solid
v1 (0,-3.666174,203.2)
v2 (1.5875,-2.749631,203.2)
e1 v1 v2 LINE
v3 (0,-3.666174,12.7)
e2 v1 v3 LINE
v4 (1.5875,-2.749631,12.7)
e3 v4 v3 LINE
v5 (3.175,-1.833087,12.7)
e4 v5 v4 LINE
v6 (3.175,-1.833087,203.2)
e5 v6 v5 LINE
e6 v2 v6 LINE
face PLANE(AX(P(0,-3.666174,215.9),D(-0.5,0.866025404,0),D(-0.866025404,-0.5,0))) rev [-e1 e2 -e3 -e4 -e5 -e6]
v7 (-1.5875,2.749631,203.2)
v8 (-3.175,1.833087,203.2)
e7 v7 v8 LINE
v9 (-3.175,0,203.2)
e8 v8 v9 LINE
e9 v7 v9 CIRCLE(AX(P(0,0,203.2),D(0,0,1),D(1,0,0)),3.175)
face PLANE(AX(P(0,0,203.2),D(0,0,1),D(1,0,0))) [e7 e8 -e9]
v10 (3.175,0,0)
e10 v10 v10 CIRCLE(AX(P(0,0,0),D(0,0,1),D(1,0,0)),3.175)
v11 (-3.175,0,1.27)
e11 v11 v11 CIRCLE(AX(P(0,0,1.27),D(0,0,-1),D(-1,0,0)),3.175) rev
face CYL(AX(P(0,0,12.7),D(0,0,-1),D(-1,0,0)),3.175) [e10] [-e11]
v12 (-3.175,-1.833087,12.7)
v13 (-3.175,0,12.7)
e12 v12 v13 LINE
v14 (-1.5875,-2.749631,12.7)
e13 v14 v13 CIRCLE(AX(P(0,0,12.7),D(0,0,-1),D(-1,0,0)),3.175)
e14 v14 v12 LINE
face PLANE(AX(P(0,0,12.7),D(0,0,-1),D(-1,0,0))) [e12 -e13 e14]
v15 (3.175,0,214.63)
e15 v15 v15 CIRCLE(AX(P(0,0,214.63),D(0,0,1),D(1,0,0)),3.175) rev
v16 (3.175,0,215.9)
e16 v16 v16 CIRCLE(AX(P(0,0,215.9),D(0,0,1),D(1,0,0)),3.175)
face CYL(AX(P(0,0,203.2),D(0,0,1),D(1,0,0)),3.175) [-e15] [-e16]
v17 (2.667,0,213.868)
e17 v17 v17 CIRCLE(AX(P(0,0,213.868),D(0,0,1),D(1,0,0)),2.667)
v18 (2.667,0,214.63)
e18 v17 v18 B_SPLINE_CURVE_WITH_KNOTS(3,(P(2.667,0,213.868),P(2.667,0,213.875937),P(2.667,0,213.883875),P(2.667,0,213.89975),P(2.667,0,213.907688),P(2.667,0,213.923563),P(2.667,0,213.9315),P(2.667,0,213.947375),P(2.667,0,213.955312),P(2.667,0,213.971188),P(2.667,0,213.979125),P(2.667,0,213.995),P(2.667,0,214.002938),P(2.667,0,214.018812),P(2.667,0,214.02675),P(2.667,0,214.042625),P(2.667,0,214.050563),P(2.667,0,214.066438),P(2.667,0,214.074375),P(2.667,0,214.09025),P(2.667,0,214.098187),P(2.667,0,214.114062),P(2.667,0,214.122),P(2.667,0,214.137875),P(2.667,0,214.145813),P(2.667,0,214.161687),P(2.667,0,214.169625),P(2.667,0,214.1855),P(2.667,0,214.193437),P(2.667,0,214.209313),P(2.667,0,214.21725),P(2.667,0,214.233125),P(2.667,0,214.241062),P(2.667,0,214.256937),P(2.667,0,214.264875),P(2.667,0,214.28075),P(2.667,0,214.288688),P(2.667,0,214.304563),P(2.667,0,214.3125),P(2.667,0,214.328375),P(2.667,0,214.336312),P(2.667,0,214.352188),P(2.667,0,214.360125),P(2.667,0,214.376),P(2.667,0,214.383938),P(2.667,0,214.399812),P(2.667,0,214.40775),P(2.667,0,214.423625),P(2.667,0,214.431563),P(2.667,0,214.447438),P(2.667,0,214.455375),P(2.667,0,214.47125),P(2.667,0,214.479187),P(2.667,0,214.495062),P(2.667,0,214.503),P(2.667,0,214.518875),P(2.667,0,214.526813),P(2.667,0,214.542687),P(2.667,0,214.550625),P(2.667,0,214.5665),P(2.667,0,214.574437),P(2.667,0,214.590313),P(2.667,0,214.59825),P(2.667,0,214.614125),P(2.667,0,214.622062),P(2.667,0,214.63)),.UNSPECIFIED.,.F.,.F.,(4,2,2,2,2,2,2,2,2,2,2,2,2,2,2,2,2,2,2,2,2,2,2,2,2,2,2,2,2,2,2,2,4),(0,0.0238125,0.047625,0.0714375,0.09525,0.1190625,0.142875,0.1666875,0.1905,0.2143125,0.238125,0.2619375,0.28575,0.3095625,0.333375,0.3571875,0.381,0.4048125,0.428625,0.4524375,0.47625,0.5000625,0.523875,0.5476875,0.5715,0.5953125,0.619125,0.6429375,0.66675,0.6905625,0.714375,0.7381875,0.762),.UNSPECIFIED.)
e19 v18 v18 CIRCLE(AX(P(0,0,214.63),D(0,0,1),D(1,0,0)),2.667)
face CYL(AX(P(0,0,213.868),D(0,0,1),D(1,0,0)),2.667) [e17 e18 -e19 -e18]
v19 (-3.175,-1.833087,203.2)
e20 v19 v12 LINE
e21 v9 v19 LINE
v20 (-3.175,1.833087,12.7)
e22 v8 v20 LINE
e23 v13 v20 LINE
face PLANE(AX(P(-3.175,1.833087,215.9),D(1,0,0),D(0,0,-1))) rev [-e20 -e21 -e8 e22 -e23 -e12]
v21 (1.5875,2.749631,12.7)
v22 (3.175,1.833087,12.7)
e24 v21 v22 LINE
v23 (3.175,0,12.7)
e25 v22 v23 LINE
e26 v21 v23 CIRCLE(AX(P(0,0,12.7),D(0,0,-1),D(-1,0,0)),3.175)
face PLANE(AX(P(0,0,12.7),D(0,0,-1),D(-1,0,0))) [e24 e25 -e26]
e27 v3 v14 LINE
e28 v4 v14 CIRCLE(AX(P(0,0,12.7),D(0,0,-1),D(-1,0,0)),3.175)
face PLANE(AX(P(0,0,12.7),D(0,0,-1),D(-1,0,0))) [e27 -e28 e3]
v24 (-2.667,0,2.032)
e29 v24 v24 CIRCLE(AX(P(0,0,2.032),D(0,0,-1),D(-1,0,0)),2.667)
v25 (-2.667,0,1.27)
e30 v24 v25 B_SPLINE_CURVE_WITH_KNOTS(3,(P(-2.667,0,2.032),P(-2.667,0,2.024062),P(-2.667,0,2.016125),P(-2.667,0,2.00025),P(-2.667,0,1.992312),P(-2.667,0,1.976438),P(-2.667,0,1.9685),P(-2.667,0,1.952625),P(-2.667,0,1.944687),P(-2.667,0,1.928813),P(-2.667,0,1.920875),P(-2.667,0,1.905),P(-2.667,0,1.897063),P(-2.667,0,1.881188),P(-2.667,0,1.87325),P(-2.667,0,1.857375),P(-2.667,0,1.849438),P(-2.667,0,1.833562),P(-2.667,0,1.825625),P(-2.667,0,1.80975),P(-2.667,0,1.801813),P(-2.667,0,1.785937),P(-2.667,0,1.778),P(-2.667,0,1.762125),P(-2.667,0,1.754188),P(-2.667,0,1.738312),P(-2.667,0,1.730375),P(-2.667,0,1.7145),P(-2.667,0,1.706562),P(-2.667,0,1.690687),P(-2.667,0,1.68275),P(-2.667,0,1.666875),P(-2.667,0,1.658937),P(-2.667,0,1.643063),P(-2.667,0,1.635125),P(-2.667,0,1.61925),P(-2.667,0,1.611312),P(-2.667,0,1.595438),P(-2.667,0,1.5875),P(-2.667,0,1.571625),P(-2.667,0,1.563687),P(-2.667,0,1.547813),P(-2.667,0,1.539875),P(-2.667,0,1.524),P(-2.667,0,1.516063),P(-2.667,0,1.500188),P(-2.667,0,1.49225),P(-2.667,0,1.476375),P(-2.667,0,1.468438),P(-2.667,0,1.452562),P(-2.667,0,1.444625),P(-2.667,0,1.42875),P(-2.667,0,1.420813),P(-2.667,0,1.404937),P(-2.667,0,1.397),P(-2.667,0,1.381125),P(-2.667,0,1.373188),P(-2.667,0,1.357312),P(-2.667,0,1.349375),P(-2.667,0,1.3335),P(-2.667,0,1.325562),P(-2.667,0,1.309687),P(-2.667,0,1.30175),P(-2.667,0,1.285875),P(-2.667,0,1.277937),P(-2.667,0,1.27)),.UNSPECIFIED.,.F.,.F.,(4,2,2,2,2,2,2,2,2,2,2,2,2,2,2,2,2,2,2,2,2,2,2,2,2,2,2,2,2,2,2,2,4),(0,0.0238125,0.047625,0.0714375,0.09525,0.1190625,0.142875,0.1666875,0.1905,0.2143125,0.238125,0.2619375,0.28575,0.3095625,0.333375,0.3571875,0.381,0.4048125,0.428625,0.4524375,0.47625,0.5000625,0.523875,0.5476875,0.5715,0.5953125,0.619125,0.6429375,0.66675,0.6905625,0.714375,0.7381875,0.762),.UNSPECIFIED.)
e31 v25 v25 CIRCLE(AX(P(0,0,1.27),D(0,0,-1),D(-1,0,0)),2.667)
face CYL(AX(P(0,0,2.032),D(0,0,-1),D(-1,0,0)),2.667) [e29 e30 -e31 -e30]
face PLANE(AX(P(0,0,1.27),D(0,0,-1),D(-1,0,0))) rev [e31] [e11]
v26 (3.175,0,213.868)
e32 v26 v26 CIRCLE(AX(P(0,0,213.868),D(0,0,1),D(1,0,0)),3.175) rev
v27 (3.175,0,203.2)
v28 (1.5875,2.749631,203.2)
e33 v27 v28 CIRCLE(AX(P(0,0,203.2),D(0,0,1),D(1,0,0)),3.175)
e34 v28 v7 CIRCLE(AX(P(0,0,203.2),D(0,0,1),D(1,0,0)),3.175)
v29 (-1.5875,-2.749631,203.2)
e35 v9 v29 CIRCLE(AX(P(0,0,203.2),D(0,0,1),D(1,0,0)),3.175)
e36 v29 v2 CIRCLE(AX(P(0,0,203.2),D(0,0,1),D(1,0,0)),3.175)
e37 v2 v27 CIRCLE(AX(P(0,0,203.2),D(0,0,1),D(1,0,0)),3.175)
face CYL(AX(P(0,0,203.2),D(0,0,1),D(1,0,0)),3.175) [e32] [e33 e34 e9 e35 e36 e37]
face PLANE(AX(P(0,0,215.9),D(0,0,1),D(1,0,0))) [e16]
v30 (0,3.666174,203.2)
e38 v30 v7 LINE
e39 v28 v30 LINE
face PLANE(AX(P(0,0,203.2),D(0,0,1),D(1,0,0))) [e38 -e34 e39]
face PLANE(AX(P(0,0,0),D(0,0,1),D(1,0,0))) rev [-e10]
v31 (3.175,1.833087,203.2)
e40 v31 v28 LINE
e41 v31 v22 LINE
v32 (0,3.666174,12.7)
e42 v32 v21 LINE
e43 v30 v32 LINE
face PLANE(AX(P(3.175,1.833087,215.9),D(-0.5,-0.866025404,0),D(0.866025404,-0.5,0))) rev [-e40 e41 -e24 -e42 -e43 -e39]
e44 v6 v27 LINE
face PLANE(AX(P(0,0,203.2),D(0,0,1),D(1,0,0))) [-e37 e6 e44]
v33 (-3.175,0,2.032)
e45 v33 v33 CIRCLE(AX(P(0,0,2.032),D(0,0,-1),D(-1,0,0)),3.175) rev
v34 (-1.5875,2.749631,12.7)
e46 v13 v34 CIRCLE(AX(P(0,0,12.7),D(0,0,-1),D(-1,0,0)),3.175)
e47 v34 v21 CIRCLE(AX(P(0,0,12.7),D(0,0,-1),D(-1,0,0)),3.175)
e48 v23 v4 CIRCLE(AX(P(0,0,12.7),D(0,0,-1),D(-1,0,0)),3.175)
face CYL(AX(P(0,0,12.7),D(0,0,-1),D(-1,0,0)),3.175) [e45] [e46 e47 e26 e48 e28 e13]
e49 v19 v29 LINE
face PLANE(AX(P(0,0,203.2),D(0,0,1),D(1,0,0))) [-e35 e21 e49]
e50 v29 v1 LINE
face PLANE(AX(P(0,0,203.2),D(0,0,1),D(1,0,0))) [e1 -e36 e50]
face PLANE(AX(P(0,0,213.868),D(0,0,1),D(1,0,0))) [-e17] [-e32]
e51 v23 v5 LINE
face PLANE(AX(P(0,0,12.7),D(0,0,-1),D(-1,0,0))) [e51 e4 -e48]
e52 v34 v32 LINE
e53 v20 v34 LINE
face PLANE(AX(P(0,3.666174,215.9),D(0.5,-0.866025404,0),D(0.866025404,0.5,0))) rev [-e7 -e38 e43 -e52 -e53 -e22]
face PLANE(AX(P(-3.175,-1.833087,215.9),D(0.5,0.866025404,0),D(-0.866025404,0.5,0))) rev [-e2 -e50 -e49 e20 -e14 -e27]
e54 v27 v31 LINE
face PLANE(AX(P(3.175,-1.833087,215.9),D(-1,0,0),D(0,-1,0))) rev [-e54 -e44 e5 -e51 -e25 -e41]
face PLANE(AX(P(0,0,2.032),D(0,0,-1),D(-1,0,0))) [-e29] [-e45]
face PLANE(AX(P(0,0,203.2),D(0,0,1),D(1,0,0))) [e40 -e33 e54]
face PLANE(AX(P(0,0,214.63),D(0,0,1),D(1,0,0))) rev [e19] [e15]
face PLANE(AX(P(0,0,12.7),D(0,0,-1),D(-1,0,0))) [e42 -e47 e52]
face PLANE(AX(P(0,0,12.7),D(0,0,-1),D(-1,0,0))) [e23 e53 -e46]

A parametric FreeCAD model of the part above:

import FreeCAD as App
import Part
import Sketcher
Q = App.Units.Quantity

doc = App.newDocument("Part")
body = doc.addObject("PartDesign::Body", "Body")

sketch1 = body.newObject("Sketcher::SketchObject", "Sketch")
sketch1.AttachmentSupport = (doc.getObject("XY_Plane"), [""])
sketch1.MapMode = "FlatFace"
sketch1.addGeometry([
    Part.LineSegment(App.Vector(0, 3.666174, 0), App.Vector(-3.175, 1.833087, 0)),
    Part.LineSegment(App.Vector(-3.175, 1.833087, 0), App.Vector(-3.175, -1.833087, 0)),
    Part.LineSegment(App.Vector(-3.175, -1.833087, 0), App.Vector(0, -3.666174, 0)),
    Part.LineSegment(App.Vector(0, -3.666174, 0), App.Vector(3.175, -1.833087, 0)),
    Part.LineSegment(App.Vector(3.175, -1.833087, 0), App.Vector(3.175, 1.833087, 0)),
    Part.LineSegment(App.Vector(3.175, 1.833087, 0), App.Vector(0, 3.666174, 0)),
], False)
sketch1.addConstraint([
    Sketcher.Constraint("Coincident", 0, 2, 1, 1),
    Sketcher.Constraint("Coincident", 1, 2, 2, 1),
    Sketcher.Constraint("Coincident", 2, 2, 3, 1),
    Sketcher.Constraint("Coincident", 3, 2, 4, 1),
    Sketcher.Constraint("Coincident", 4, 2, 5, 1),
    Sketcher.Constraint("Coincident", 5, 2, 0, 1),
    Sketcher.Constraint("Vertical", 1),
    Sketcher.Constraint("Vertical", 4),
    Sketcher.Constraint("Symmetric", 0, 2, 3, 2, -1, 1),
    Sketcher.Constraint("Symmetric", 2, 2, 5, 2, -1, 1),
    Sketcher.Constraint("PointOnObject", 2, 2, -2),
    Sketcher.Constraint("Parallel", 2, 5),
    Sketcher.Constraint("Horizontal", 1, 2, 3, 2),
    Sketcher.Constraint("Angle", 0, Q("-150 deg")),
    Sketcher.Constraint("DistanceX", 1, 2, 3, 2, Q("0.25 in")),
    Sketcher.Constraint("DistanceY", 1, 2, 1, 1, Q("3.666174 mm")),
])
pad1 = body.newObject("PartDesign::Pad", "Pad")
pad1.Profile = sketch1
pad1.Length = Q("8.5 in")

sketch2 = body.newObject("Sketcher::SketchObject", "Sketch001")
sketch2.AttachmentSupport = (doc.getObject("XY_Plane"), [""])
sketch2.MapMode = "FlatFace"
sketch2.addGeometry([
    Part.LineSegment(App.Vector(25.787, 26.278, 0), App.Vector(25.787, -26.278, 0)),
    Part.LineSegment(App.Vector(25.787, -26.278, 0), App.Vector(-25.787, -26.278, 0)),
    Part.LineSegment(App.Vector(-25.787, -26.278, 0), App.Vector(-25.787, 26.278, 0)),
    Part.LineSegment(App.Vector(-25.787, 26.278, 0), App.Vector(25.787, 26.278, 0)),
    Part.Circle(App.Vector(0, 0, 0), App.Vector(0, 0, 1), 3.175),
], False)
sketch2.addConstraint([
    Sketcher.Constraint("Coincident", 0, 2, 1, 1),
    Sketcher.Constraint("Coincident", 1, 2, 2, 1),
    Sketcher.Constraint("Coincident", 2, 2, 3, 1),
    Sketcher.Constraint("Coincident", 3, 2, 0, 1),
    Sketcher.Constraint("Vertical", 0),
    Sketcher.Constraint("Horizontal", 1),
    Sketcher.Constraint("Vertical", 2),
    Sketcher.Constraint("Horizontal", 3),
    Sketcher.Constraint("Coincident", 4, 3, -1, 1),
    Sketcher.Constraint("Symmetric", 0, 2, 2, 2, -1, 1),
    Sketcher.Constraint("Diameter", 4, Q("0.25 in")),
    Sketcher.Constraint("DistanceX", 1, 2, 1, 1, Q("51.574 mm")),
    Sketcher.Constraint("DistanceY", 0, 2, 0, 1, Q("52.556 mm")),
])
pocket1 = body.newObject("PartDesign::Pocket", "Pocket")
pocket1.Profile = sketch2
pocket1.Length = Q("0.5 in")
pocket1.Reversed = True

sketch3 = body.newObject("Sketcher::SketchObject", "Sketch002")
sketch3.AttachmentSupport = (doc.getObject("XY_Plane"), [""])
sketch3.MapMode = "FlatFace"
sketch3.AttachmentOffset = App.Placement(App.Vector(0, 0, 8.5 * 25.4), App.Rotation())
sketch3.addGeometry([
    Part.LineSegment(App.Vector(-25.787, 26.278, 0), App.Vector(-25.787, -26.278, 0)),
    Part.LineSegment(App.Vector(-25.787, -26.278, 0), App.Vector(25.787, -26.278, 0)),
    Part.LineSegment(App.Vector(25.787, -26.278, 0), App.Vector(25.787, 26.278, 0)),
    Part.LineSegment(App.Vector(25.787, 26.278, 0), App.Vector(-25.787, 26.278, 0)),
    Part.Circle(App.Vector(0, 0, 0), App.Vector(0, 0, 1), 3.175),
], False)
sketch3.addConstraint([
    Sketcher.Constraint("Coincident", 0, 2, 1, 1),
    Sketcher.Constraint("Coincident", 1, 2, 2, 1),
    Sketcher.Constraint("Coincident", 2, 2, 3, 1),
    Sketcher.Constraint("Coincident", 3, 2, 0, 1),
    Sketcher.Constraint("Vertical", 0),
    Sketcher.Constraint("Horizontal", 1),
    Sketcher.Constraint("Vertical", 2),
    Sketcher.Constraint("Horizontal", 3),
    Sketcher.Constraint("Coincident", 4, 3, -1, 1),
    Sketcher.Constraint("Symmetric", 0, 2, 2, 2, -1, 1),
    Sketcher.Constraint("Diameter", 4, Q("0.25 in")),
    Sketcher.Constraint("DistanceX", 1, 1, 1, 2, Q("51.574 mm")),
    Sketcher.Constraint("DistanceY", 0, 2, 0, 1, Q("52.556 mm")),
])
pocket2 = body.newObject("PartDesign::Pocket", "Pocket001")
pocket2.Profile = sketch3
pocket2.Length = Q("0.5 in")

sketch4 = body.newObject("Sketcher::SketchObject", "Sketch003")
sketch4.AttachmentSupport = (doc.getObject("XY_Plane"), [""])
sketch4.MapMode = "FlatFace"
sketch4.AttachmentOffset = App.Placement(App.Vector(0, 0, 8.45 * 25.4), App.Rotation())
sketch4.addGeometry([
    Part.LineSegment(App.Vector(-25.787, 26.278, 0), App.Vector(-25.787, -26.278, 0)),
    Part.LineSegment(App.Vector(-25.787, -26.278, 0), App.Vector(25.787, -26.278, 0)),
    Part.LineSegment(App.Vector(25.787, -26.278, 0), App.Vector(25.787, 26.278, 0)),
    Part.LineSegment(App.Vector(25.787, 26.278, 0), App.Vector(-25.787, 26.278, 0)),
    Part.Circle(App.Vector(0, 0, 0), App.Vector(0, 0, 1), 2.667),
], False)
sketch4.addConstraint([
    Sketcher.Constraint("Coincident", 0, 2, 1, 1),
    Sketcher.Constraint("Coincident", 1, 2, 2, 1),
    Sketcher.Constraint("Coincident", 2, 2, 3, 1),
    Sketcher.Constraint("Coincident", 3, 2, 0, 1),
    Sketcher.Constraint("Vertical", 0),
    Sketcher.Constraint("Horizontal", 1),
    Sketcher.Constraint("Vertical", 2),
    Sketcher.Constraint("Horizontal", 3),
    Sketcher.Constraint("Coincident", 4, 3, -1, 1),
    Sketcher.Constraint("Symmetric", 0, 2, 2, 2, -1, 1),
    Sketcher.Constraint("Diameter", 4, Q("0.21 in")),
    Sketcher.Constraint("DistanceX", 1, 1, 1, 2, Q("51.574 mm")),
    Sketcher.Constraint("DistanceY", 0, 2, 0, 1, Q("52.556 mm")),
])
pocket3 = body.newObject("PartDesign::Pocket", "Pocket002")
pocket3.Profile = sketch4
pocket3.Length = Q("0.03 in")

sketch5 = body.newObject("Sketcher::SketchObject", "Sketch004")
sketch5.AttachmentSupport = (doc.getObject("XY_Plane"), [""])
sketch5.MapMode = "FlatFace"
sketch5.AttachmentOffset = App.Placement(App.Vector(0, 0, 0.05 * 25.4), App.Rotation())
sketch5.addGeometry([
    Part.LineSegment(App.Vector(25.787, 26.278, 0), App.Vector(25.787, -26.278, 0)),
    Part.LineSegment(App.Vector(25.787, -26.278, 0), App.Vector(-25.787, -26.278, 0)),
    Part.LineSegment(App.Vector(-25.787, -26.278, 0), App.Vector(-25.787, 26.278, 0)),
    Part.LineSegment(App.Vector(-25.787, 26.278, 0), App.Vector(25.787, 26.278, 0)),
    Part.Circle(App.Vector(0, 0, 0), App.Vector(0, 0, 1), 2.667),
], False)
sketch5.addConstraint([
    Sketcher.Constraint("Coincident", 0, 2, 1, 1),
    Sketcher.Constraint("Coincident", 1, 2, 2, 1),
    Sketcher.Constraint("Coincident", 2, 2, 3, 1),
    Sketcher.Constraint("Coincident", 3, 2, 0, 1),
    Sketcher.Constraint("Vertical", 0),
    Sketcher.Constraint("Horizontal", 1),
    Sketcher.Constraint("Vertical", 2),
    Sketcher.Constraint("Horizontal", 3),
    Sketcher.Constraint("Coincident", 4, 3, -1, 1),
    Sketcher.Constraint("Symmetric", 0, 2, 2, 2, -1, 1),
    Sketcher.Constraint("Diameter", 4, Q("0.21 in")),
    Sketcher.Constraint("DistanceX", 1, 2, 1, 1, Q("51.574 mm")),
    Sketcher.Constraint("DistanceY", 0, 2, 0, 1, Q("52.556 mm")),
])
pocket4 = body.newObject("PartDesign::Pocket", "Pocket003")
pocket4.Profile = sketch5
pocket4.Length = Q("0.03 in")
pocket4.Reversed = True

doc.recompute()
